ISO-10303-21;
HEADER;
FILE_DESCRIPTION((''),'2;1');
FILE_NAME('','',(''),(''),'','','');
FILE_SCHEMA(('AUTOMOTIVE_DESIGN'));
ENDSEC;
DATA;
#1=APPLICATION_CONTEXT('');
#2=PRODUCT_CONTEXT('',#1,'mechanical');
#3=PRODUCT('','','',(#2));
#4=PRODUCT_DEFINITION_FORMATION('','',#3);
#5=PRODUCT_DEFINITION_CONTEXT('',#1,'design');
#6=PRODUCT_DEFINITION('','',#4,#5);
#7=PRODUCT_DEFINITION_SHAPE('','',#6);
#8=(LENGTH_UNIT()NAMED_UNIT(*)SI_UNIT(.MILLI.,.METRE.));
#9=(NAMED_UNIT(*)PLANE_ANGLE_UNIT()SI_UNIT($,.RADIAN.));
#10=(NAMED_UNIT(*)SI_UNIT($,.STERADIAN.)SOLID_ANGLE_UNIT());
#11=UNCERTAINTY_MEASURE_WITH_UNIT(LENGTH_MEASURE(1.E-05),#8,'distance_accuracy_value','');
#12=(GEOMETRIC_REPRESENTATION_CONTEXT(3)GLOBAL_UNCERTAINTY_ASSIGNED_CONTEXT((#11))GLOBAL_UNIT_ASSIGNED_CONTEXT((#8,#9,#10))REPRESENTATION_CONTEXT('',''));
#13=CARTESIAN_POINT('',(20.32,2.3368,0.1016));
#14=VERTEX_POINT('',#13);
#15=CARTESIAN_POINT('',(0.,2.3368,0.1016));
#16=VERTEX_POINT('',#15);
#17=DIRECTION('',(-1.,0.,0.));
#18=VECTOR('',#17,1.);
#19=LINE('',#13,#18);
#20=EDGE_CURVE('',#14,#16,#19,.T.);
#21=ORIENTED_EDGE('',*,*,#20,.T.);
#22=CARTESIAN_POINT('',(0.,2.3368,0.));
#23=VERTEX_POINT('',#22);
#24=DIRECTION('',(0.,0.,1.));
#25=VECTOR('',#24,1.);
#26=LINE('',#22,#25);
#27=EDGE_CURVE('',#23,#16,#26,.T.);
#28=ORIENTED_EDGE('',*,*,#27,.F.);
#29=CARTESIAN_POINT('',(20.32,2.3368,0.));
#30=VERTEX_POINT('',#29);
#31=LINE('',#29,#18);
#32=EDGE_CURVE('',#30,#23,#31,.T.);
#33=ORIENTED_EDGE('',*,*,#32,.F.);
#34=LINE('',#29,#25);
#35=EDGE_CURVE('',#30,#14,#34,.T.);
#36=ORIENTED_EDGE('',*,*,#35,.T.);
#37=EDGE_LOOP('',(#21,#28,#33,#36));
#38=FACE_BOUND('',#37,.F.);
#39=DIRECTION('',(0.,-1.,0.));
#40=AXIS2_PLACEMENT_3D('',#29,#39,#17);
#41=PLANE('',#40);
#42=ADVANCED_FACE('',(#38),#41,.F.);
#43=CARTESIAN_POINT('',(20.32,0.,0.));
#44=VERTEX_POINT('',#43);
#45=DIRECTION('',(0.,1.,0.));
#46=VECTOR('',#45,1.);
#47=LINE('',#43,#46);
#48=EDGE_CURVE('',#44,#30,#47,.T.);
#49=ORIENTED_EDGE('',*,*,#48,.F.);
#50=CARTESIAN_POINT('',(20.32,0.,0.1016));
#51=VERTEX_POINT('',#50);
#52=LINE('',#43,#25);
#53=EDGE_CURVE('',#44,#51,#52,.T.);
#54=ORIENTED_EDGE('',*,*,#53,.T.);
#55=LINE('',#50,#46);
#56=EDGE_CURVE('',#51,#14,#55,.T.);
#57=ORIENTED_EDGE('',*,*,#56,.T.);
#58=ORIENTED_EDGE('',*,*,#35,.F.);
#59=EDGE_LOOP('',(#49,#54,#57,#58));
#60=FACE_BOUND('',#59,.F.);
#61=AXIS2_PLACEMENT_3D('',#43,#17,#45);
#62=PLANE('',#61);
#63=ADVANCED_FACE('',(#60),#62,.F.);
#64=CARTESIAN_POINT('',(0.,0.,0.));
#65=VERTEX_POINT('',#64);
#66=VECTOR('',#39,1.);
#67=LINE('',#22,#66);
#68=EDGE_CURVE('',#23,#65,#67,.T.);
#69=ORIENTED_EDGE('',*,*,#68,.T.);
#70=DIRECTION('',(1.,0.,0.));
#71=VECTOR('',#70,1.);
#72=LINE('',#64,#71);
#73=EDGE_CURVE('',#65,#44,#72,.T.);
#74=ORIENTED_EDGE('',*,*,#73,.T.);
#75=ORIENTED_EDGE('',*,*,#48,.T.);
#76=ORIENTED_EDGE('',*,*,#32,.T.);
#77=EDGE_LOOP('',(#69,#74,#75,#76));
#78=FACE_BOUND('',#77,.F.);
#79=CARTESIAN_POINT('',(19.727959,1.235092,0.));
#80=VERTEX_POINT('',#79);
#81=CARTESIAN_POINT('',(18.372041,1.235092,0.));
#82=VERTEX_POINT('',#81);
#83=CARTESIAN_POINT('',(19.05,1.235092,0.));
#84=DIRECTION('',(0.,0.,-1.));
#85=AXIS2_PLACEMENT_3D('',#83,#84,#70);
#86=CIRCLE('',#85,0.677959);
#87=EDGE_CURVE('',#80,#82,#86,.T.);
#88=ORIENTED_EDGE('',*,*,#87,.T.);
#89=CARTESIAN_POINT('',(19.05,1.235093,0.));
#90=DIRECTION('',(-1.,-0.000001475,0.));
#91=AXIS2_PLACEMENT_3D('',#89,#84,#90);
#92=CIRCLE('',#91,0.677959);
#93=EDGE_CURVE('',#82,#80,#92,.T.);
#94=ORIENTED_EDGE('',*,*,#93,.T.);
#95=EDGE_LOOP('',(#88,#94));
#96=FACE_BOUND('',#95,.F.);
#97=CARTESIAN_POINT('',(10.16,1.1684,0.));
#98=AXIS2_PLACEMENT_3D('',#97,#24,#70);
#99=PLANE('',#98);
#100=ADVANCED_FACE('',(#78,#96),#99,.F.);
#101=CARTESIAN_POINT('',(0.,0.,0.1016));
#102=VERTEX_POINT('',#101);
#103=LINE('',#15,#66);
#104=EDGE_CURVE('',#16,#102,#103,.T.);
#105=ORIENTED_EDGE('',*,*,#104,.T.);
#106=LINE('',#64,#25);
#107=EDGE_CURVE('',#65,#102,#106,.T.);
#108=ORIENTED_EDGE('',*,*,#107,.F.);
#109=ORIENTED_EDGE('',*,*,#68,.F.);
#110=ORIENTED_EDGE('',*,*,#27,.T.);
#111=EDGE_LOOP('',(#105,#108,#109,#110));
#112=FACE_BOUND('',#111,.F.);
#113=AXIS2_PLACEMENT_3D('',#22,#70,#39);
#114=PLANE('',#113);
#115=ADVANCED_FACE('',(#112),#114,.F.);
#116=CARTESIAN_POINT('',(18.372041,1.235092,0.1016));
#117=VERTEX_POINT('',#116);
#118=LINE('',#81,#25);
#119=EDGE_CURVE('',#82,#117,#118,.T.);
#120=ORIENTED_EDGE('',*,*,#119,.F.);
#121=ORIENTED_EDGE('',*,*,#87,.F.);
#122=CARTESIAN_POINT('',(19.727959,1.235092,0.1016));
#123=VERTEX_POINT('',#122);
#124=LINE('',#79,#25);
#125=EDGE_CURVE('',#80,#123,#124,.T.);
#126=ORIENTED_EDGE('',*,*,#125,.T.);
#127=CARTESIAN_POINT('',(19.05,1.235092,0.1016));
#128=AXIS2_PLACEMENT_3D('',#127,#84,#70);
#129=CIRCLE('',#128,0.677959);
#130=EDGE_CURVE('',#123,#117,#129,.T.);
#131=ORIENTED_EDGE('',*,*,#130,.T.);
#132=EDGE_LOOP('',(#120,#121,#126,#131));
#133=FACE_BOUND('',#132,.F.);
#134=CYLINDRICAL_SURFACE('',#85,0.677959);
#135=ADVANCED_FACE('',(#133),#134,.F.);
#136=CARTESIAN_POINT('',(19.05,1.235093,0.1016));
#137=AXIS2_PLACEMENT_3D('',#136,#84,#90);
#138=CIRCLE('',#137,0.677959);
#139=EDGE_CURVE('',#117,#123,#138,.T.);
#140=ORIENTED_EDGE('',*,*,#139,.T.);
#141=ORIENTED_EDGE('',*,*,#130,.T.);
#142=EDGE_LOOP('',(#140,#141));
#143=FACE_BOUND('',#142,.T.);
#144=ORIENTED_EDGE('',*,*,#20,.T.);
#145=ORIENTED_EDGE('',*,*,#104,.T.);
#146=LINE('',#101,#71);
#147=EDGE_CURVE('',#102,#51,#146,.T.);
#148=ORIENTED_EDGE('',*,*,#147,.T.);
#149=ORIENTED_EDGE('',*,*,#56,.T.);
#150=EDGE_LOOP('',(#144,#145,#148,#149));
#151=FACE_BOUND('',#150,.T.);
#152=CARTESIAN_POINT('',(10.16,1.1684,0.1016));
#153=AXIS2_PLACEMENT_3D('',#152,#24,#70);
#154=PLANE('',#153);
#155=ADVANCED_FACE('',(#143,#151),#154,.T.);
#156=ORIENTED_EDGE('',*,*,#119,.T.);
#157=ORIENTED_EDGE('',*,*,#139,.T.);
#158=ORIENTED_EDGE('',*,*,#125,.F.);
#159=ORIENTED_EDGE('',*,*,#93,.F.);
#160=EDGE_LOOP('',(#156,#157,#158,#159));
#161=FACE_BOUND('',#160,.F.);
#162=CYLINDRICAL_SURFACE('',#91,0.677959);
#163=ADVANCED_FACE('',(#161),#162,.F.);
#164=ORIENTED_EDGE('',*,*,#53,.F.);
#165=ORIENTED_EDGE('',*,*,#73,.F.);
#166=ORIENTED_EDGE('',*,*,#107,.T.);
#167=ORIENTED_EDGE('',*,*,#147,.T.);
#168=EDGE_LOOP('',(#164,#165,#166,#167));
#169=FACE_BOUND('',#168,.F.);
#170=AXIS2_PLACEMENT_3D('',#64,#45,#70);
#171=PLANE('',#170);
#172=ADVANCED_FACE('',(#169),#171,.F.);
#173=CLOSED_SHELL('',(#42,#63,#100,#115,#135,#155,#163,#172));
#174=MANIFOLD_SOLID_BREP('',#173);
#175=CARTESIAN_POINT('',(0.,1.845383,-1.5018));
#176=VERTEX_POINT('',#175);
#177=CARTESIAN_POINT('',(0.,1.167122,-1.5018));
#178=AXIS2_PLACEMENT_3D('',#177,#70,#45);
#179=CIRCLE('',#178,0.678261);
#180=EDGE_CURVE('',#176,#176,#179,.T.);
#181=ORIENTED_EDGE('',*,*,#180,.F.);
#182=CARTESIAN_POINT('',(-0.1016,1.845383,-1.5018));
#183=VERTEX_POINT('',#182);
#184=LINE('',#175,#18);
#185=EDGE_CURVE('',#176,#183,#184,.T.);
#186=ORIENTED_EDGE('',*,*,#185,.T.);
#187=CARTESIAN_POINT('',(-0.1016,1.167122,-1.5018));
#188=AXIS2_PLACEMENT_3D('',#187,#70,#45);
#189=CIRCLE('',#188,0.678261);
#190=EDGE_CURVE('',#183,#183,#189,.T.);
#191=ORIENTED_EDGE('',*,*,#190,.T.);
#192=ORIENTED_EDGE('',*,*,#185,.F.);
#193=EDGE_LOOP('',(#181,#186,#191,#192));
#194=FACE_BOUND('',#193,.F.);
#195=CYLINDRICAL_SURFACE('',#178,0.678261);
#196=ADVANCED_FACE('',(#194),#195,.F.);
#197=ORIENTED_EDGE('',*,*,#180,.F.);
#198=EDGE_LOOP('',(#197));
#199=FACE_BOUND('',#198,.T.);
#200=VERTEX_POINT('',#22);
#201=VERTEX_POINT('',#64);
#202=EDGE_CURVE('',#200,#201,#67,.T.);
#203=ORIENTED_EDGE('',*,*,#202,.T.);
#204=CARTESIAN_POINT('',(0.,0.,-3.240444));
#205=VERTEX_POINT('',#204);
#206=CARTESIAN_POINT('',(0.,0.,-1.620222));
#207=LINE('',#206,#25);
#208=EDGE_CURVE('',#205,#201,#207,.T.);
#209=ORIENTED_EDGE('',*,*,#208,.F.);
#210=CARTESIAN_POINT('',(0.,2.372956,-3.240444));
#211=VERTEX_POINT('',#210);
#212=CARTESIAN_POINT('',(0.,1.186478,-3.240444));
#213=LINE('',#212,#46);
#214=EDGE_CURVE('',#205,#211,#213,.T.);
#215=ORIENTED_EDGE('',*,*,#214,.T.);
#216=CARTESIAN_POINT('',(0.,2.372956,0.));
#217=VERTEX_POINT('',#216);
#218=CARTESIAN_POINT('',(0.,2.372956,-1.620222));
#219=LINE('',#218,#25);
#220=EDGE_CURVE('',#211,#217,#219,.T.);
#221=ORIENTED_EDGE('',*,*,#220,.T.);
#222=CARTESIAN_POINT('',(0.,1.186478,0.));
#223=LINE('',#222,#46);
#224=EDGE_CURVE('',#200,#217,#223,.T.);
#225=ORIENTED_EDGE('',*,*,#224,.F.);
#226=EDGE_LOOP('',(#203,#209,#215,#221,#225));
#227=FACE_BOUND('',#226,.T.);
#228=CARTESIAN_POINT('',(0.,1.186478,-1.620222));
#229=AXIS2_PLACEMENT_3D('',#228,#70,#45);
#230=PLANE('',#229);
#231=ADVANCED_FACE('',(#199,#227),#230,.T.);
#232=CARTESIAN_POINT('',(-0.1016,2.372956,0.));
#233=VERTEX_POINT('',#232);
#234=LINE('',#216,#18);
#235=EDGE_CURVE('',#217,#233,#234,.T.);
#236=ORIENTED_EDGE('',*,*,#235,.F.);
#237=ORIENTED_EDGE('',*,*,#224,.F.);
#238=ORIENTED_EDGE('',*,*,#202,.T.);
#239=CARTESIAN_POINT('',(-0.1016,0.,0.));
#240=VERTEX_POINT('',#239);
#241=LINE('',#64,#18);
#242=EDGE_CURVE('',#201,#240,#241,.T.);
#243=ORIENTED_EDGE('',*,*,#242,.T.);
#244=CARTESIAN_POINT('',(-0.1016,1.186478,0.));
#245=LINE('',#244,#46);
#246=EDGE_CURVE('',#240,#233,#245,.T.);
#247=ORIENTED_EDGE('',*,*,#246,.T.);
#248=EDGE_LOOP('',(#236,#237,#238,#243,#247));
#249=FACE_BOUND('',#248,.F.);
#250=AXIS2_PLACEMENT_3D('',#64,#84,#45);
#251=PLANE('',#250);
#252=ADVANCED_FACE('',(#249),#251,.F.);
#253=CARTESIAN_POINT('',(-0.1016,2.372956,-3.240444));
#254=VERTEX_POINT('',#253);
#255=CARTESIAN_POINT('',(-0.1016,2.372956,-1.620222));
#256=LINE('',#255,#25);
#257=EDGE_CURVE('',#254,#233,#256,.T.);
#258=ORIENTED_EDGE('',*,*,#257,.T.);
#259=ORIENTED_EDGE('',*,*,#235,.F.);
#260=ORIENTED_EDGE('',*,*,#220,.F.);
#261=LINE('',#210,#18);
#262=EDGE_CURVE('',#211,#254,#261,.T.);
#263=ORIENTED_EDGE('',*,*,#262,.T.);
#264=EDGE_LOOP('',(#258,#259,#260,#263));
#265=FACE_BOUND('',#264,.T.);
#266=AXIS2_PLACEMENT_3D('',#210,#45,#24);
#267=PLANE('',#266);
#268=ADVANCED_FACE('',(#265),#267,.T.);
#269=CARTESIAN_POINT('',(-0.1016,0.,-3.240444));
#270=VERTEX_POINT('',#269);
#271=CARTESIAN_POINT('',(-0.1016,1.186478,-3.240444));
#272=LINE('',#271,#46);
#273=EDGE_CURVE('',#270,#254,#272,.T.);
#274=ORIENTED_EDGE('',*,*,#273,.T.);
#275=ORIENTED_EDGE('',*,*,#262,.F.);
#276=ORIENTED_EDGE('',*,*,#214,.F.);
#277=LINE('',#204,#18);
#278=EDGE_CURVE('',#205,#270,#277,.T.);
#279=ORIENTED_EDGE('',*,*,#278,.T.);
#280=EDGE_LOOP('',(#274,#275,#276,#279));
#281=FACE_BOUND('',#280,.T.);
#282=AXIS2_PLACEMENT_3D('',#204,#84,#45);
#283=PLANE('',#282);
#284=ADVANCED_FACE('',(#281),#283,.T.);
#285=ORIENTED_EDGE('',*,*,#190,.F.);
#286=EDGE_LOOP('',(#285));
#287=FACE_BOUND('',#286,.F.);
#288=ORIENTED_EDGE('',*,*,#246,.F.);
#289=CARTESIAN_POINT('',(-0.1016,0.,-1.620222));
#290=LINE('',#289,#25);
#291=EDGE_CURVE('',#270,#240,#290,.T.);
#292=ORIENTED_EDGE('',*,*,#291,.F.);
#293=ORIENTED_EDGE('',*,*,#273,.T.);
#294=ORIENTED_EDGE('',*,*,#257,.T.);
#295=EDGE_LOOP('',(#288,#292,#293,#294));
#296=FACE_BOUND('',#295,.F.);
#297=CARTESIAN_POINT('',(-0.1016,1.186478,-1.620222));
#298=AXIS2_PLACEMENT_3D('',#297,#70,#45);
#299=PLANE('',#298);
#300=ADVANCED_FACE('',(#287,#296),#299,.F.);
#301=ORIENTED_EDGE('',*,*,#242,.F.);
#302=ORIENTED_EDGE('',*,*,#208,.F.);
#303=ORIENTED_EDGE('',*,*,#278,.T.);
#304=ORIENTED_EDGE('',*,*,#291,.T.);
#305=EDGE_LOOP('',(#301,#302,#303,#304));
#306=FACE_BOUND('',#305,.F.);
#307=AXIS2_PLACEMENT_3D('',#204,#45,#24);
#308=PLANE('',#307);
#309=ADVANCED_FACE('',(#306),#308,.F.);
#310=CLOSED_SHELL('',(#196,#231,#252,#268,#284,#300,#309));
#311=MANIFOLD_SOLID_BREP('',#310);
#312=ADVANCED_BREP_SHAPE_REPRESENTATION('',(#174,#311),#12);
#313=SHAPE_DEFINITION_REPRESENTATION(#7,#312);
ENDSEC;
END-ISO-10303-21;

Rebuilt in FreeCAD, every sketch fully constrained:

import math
import FreeCAD as App
import Part
import Sketcher
Q = App.Units.Quantity


def add_polygon(sketch, points):
    """Adds a closed chain of lines whose ends are joined by coincident constraints."""
    first, n = sketch.GeometryCount, len(points)
    for a, b in zip(points, points[1:] + points[:1]):
        sketch.addGeometry(Part.LineSegment(App.Vector(*a, 0), App.Vector(*b, 0)), False)
    for i in range(n):
        sketch.addConstraint(Sketcher.Constraint("Coincident", first + i, 2, first + (i + 1) % n, 1))

doc = App.newDocument("Part")
body = doc.addObject("PartDesign::Body", "Body")
body.AllowCompound = True

# Sketch on XY plane
sketch1 = doc.addObject("Sketcher::SketchObject", "Sketch")
body.addObject(sketch1)
sketch1.AttachmentSupport = (doc.XY_Plane, [""])
sketch1.MapMode = "FlatFace"
add_polygon(sketch1, [(0, 0), (20.3, 0), (20.3, 2.3), (0, 2.3)])  # lines 0-3
sketch1.addGeometry(Part.ArcOfCircle(Part.Circle(App.Vector(19.1, 1.2, 0), App.Vector(0, 0, 1), 0.7), math.radians(0), math.radians(180)), False)  # 4
sketch1.addGeometry(Part.ArcOfCircle(Part.Circle(App.Vector(19.1, 1.2, 0), App.Vector(0, 0, 1), 0.7), math.radians(180), math.radians(360)), False)  # 5
sketch1.addConstraint([
    Sketcher.Constraint("Tangent", 4, 1, 5, 2),
    Sketcher.Constraint("Coincident", 5, 1, 4, 2),
    Sketcher.Constraint("Horizontal", 0),
    Sketcher.Constraint("Vertical", 1),
    Sketcher.Constraint("Horizontal", 2),
    Sketcher.Constraint("Vertical", 3),
    Sketcher.Constraint("Coincident", 3, 2, -1, 1),
    Sketcher.Constraint("Horizontal", 5, 3, 4, 1),
    Sketcher.Constraint("Horizontal", 4, 1, 5, 1),
    Sketcher.Constraint("DistanceX", 0, 1, 0, 2, Q("0.8 in")),
    Sketcher.Constraint("DistanceY", 1, 1, 1, 2, Q("0.092 in")),
    Sketcher.Constraint("DistanceX", -1, 1, 4, 3, Q("0.75 in")),
    Sketcher.Constraint("Radius", 4, 0.677959),
    Sketcher.Constraint("DistanceY", 5, 3, 1, 2, 1.101708),
])
pad1 = doc.addObject("PartDesign::Pad", "Pad")
body.addObject(pad1)
pad1.Profile = sketch1
pad1.Length = Q("0.004 in")

# Sketch on YZ plane
sketch2 = doc.addObject("Sketcher::SketchObject", "Sketch001")
body.addObject(sketch2)
sketch2.AttachmentSupport = (doc.YZ_Plane, [""])
sketch2.MapMode = "FlatFace"
add_polygon(sketch2, [(0, 0), (0, -3.2), (2.4, -3.2), (2.4, 0)])  # lines 0-3
sketch2.addGeometry(Part.Circle(App.Vector(1.2, -1.5, 0), App.Vector(0, 0, 1), 0.7), False)  # 4
sketch2.addConstraint([
    Sketcher.Constraint("Vertical", 0),
    Sketcher.Constraint("Horizontal", 1),
    Sketcher.Constraint("Vertical", 2),
    Sketcher.Constraint("Horizontal", 3),
    Sketcher.Constraint("Coincident", 3, 2, -1, 1),
    Sketcher.Constraint("Diameter", 4, 1.356522),
    Sketcher.Constraint("DistanceY", 4, 3, -1, 1, 1.5018),
    Sketcher.Constraint("DistanceX", 1, 1, 1, 2, 2.372956),
    Sketcher.Constraint("DistanceY", 0, 2, 0, 1, 3.240444),
    Sketcher.Constraint("DistanceX", -1, 1, 4, 3, 1.167122),
])
pad2 = doc.addObject("PartDesign::Pad", "Pad001")
body.addObject(pad2)
pad2.Profile = sketch2
pad2.Length = Q("0.004 in")
pad2.Reversed = True

doc.recompute()
